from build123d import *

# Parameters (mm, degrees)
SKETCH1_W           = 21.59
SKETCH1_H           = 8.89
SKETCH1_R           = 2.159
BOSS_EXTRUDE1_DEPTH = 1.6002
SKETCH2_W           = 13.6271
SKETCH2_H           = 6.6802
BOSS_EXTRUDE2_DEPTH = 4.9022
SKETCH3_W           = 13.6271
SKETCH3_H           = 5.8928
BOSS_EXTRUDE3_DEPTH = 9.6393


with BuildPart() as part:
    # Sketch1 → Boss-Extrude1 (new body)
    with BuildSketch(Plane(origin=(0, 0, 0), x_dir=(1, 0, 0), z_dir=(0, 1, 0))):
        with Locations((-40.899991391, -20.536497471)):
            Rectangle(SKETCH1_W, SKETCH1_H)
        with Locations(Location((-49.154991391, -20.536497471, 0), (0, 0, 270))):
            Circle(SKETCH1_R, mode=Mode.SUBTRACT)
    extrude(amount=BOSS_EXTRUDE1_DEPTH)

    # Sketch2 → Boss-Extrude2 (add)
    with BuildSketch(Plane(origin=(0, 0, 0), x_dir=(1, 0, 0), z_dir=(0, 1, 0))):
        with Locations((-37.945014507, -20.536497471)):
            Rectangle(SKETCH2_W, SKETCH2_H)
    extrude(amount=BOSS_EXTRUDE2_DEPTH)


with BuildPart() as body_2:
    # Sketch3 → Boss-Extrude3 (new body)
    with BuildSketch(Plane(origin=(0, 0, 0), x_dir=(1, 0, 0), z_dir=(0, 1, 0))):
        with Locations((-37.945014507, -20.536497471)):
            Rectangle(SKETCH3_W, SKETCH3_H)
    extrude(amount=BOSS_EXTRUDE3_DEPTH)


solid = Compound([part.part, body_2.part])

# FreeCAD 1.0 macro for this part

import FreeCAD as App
import Part
import Sketcher

V = App.Vector
Q = App.Units.Quantity


def add_polygon(sketch, points):
    """Adds a closed chain of lines whose ends are joined by coincident constraints."""
    first, n = sketch.GeometryCount, len(points)
    for a, b in zip(points, points[1:] + points[:1]):
        sketch.addGeometry(Part.LineSegment(App.Vector(*a, 0), App.Vector(*b, 0)), False)
    for i in range(n):
        sketch.addConstraint(Sketcher.Constraint("Coincident", first + i, 2, first + (i + 1) % n, 1))

doc = App.newDocument("Part")
params = doc.addObject("Spreadsheet::Sheet", "Params")
for row, (alias, value) in enumerate([
    ("sketch1_diameter", "0.17 in"),
    ("sketch1_width", "0.85 in"),
    ("sketch1_height", "0.35 in"),
    ("pad1_length", "0.063 in"),
    ("sketch2_height", "0.263 in"),
    ("pad2_length", "0.193 in"),
    ("sketch3_height", "0.232 in"),
    ("pad3_length", "0.3795 in"),
], start=1):
    params.set(f"A{row}", alias)
    params.set(f"B{row}", "=" + value)
    params.setAlias(f"B{row}", alias)

body = doc.addObject("PartDesign::Body", "Body")

# Sketch on XZ plane
sketch1 = body.newObject("Sketcher::SketchObject", "Sketch")
sketch1.AttachmentSupport = (doc.getObject("XZ_Plane"), [""])
sketch1.MapMode = "FlatFace"
add_polygon(sketch1, [(-51.694991, 16.091497), (-51.694991, 24.981497), (-30.104991, 24.981497), (-30.104991, 16.091497)])  # lines 0-3
sketch1.addGeometry(Part.Circle(V(-49.154991, 20.536497, 0), V(0, 0, 1), 2.159), False)  # 4
sketch1.addConstraint(Sketcher.Constraint("Vertical", 0))
sketch1.addConstraint(Sketcher.Constraint("Horizontal", 1))
sketch1.addConstraint(Sketcher.Constraint("Vertical", 2))
sketch1.addConstraint(Sketcher.Constraint("Horizontal", 3))
sketch1.addConstraint(Sketcher.Constraint("Diameter", 4, Q("0.17 in")))
sketch1.addConstraint(Sketcher.Constraint("DistanceX", 1, 1, 1, 2, Q("0.85 in")))
sketch1.addConstraint(Sketcher.Constraint("DistanceY", 0, 1, 0, 2, Q("0.35 in")))
sketch1.addConstraint(Sketcher.Constraint("DistanceX", 0, 2, 4, 3, Q("0.1 in")))
sketch1.addConstraint(Sketcher.Constraint("DistanceY", 4, 3, 0, 2, Q("0.175 in")))
sketch1.addConstraint(Sketcher.Constraint("DistanceX", 4, 3, -1, 1, 49.154991))
sketch1.addConstraint(Sketcher.Constraint("DistanceY", -1, 1, 4, 3, 20.536497))
sketch1.setExpression("Constraints[8]", "Params.sketch1_diameter")
sketch1.setExpression("Constraints[9]", "Params.sketch1_width")
sketch1.setExpression("Constraints[10]", "Params.sketch1_height")
pad1 = body.newObject("PartDesign::Pad", "Pad")
pad1.Profile = sketch1
pad1.setExpression("Length", "Params.pad1_length")
pad1.Reversed = True

# Sketch on XZ plane
sketch2 = body.newObject("Sketcher::SketchObject", "Sketch001")
sketch2.AttachmentSupport = (doc.getObject("XZ_Plane"), [""])
sketch2.MapMode = "FlatFace"
add_polygon(sketch2, [(-44.758565, 17.196397), (-44.758565, 23.876597), (-31.131465, 23.876597), (-31.131465, 17.196397)])  # lines 0-3
sketch2.addConstraint(Sketcher.Constraint("Vertical", 0))
sketch2.addConstraint(Sketcher.Constraint("Horizontal", 1))
sketch2.addConstraint(Sketcher.Constraint("Vertical", 2))
sketch2.addConstraint(Sketcher.Constraint("Horizontal", 3))
sketch2.addConstraint(Sketcher.Constraint("DistanceY", 0, 1, 0, 2, Q("0.263 in")))
sketch2.addConstraint(Sketcher.Constraint("DistanceX", 1, 1, 1, 2, Q("0.5365 in")))
sketch2.addConstraint(Sketcher.Constraint("DistanceX", 0, 2, -1, 1, 44.758565))
sketch2.addConstraint(Sketcher.Constraint("DistanceY", -1, 1, 0, 2, 23.876597))
sketch2.setExpression("Constraints[8]", "Params.sketch2_height")
pad2 = body.newObject("PartDesign::Pad", "Pad001")
pad2.Profile = sketch2
pad2.setExpression("Length", "Params.pad2_length")
pad2.Reversed = True
body2 = doc.addObject("PartDesign::Body", "Body001")

# Sketch on XZ plane
sketch3 = body2.newObject("Sketcher::SketchObject", "Sketch002")
sketch3.AttachmentSupport = (doc.getObject("XZ_Plane001"), [""])
sketch3.MapMode = "FlatFace"
add_polygon(sketch3, [(-44.758565, 17.590097), (-44.758565, 23.482897), (-31.131465, 23.482897), (-31.131465, 17.590097)])  # lines 0-3
sketch3.addConstraint(Sketcher.Constraint("Vertical", 0))
sketch3.addConstraint(Sketcher.Constraint("Horizontal", 1))
sketch3.addConstraint(Sketcher.Constraint("Vertical", 2))
sketch3.addConstraint(Sketcher.Constraint("Horizontal", 3))
sketch3.addConstraint(Sketcher.Constraint("DistanceY", 0, 1, 0, 2, Q("0.232 in")))
sketch3.addConstraint(Sketcher.Constraint("DistanceX", 1, 1, 1, 2, Q("0.5365 in")))
sketch3.addConstraint(Sketcher.Constraint("DistanceX", 0, 2, -1, 1, 44.758565))
sketch3.addConstraint(Sketcher.Constraint("DistanceY", -1, 1, 0, 2, 23.482897))
sketch3.setExpression("Constraints[8]", "Params.sketch3_height")
pad3 = body2.newObject("PartDesign::Pad", "Pad002")
pad3.Profile = sketch3
pad3.setExpression("Length", "Params.pad3_length")
pad3.Reversed = True

doc.recompute()
